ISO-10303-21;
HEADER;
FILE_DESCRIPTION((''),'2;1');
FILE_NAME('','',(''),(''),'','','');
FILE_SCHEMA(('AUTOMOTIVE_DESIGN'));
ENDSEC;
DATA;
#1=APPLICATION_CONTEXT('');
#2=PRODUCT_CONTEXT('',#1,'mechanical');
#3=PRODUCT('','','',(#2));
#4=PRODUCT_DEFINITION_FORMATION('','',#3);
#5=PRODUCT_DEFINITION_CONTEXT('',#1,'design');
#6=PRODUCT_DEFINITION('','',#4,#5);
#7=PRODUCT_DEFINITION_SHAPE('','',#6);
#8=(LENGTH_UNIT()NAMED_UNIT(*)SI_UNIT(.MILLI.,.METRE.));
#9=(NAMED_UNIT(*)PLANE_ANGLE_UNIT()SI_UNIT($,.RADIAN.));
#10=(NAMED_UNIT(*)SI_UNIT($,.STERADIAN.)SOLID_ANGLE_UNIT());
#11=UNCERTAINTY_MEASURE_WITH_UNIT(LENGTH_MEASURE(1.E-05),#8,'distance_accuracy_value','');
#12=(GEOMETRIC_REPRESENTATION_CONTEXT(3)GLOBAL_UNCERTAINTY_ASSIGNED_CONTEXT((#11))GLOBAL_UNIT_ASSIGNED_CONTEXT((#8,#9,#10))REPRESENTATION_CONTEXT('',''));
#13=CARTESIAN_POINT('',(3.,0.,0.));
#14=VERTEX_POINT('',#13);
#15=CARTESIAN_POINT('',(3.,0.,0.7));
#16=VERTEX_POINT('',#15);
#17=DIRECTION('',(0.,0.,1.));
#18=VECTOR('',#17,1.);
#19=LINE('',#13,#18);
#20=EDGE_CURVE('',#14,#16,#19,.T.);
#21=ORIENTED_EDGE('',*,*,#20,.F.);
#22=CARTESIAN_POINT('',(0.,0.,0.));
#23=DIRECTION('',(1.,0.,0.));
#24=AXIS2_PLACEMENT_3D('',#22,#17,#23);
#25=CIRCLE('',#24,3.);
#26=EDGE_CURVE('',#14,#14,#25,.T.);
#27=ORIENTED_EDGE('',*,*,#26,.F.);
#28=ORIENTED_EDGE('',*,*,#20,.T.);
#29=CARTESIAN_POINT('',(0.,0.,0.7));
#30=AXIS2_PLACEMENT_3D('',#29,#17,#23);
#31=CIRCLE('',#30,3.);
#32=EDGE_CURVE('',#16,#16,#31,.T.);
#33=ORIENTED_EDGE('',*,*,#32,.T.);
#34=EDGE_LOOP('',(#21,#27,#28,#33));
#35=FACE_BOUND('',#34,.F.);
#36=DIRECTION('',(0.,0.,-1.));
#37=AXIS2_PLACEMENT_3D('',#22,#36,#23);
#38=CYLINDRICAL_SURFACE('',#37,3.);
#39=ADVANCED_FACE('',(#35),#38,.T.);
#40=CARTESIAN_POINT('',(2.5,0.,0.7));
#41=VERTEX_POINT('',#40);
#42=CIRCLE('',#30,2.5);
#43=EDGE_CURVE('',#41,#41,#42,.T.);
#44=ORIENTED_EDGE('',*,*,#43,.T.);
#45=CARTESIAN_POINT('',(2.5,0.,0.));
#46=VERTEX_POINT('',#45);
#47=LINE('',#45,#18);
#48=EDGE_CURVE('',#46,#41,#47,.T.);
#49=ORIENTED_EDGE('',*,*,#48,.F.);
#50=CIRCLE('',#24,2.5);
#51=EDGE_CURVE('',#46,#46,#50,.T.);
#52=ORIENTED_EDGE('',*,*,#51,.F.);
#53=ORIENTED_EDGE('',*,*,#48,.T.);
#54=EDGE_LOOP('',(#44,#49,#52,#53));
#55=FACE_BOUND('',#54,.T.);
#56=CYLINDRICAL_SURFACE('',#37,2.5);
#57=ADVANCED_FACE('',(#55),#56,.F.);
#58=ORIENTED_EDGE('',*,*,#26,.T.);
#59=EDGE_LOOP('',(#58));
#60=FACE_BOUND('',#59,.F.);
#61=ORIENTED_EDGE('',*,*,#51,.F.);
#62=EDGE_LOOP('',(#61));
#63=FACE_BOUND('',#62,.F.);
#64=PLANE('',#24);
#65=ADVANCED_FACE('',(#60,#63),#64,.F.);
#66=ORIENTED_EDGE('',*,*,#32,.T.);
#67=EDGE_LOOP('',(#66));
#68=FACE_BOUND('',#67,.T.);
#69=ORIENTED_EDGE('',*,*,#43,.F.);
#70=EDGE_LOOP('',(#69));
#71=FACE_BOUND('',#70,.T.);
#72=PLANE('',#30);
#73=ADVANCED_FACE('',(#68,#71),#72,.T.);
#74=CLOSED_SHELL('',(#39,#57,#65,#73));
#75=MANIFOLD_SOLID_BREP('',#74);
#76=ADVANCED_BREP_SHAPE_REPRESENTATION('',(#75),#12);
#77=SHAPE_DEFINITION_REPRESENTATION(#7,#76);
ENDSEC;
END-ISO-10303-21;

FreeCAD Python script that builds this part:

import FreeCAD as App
import Part
import Sketcher
Q = App.Units.Quantity

doc = App.newDocument("Part")
body = doc.addObject("PartDesign::Body", "Body")

# Sketch on XY plane
sketch1 = body.newObject("Sketcher::SketchObject", "Sketch")
sketch1.AttachmentSupport = (doc.getObject("XY_Plane"), [""])
sketch1.MapMode = "FlatFace"
sketch1.addGeometry([
    Part.Circle(App.Vector(0, 0, 0), App.Vector(0, 0, 1), 3),
    Part.Circle(App.Vector(0, 0, 0), App.Vector(0, 0, 1), 2.5),
], False)
sketch1.addConstraint([
    Sketcher.Constraint("Coincident", 0, 3, -1, 1),
    Sketcher.Constraint("Coincident", 1, 3, -1, 1),
    Sketcher.Constraint("Diameter", 0, Q("6 mm")),
    Sketcher.Constraint("Diameter", 1, Q("5 mm")),
])
pad1 = body.newObject("PartDesign::Pad", "Pad")
pad1.Profile = sketch1
pad1.Length = 0.7

doc.recompute()
